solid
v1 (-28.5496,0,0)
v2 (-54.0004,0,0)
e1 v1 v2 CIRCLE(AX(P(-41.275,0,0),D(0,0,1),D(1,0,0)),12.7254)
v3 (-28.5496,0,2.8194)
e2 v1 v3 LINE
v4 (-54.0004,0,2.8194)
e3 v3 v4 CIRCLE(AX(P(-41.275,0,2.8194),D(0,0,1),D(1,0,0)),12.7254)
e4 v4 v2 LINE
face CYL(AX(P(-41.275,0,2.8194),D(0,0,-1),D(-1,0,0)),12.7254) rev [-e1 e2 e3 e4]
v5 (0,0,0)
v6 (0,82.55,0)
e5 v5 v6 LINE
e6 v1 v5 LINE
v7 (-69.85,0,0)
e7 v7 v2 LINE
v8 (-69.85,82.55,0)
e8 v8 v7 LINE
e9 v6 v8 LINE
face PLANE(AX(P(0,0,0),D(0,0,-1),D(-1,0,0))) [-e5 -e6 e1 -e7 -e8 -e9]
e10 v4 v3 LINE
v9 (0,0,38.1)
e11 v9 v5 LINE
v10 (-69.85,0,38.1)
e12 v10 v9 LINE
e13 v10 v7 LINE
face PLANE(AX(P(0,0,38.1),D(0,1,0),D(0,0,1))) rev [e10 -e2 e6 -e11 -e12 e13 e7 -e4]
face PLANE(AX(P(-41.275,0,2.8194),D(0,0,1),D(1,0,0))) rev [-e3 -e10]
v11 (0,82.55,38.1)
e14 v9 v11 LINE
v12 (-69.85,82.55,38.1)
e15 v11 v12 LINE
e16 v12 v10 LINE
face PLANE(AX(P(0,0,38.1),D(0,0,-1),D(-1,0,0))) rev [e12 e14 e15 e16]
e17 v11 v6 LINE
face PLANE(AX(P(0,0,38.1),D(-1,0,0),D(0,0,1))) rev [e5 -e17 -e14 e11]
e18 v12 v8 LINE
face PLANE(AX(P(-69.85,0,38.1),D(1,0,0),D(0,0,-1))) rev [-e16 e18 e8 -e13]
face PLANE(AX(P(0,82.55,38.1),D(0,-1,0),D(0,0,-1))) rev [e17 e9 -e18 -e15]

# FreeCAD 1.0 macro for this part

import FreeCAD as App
import Part
import Sketcher

V = App.Vector
Q = App.Units.Quantity

doc = App.newDocument("Part")
body = doc.addObject("PartDesign::Body", "Body")

# Sketch on XY plane
sketch1 = body.newObject("Sketcher::SketchObject", "Sketch")
sketch1.AttachmentSupport = (doc.getObject("XY_Plane"), [""])
sketch1.MapMode = "FlatFace"
sketch1.addGeometry(Part.LineSegment(V(-70, 0, 0), V(0, 0, 0)), False)
sketch1.addGeometry(Part.LineSegment(V(0, 0, 0), V(0, 83, 0)), False)
sketch1.addGeometry(Part.LineSegment(V(0, 83, 0), V(-70, 83, 0)), False)
sketch1.addGeometry(Part.LineSegment(V(-70, 83, 0), V(-70, 0, 0)), False)
sketch1.addConstraint(Sketcher.Constraint("Coincident", 0, 2, 1, 1))
sketch1.addConstraint(Sketcher.Constraint("Coincident", 1, 2, 2, 1))
sketch1.addConstraint(Sketcher.Constraint("Coincident", 2, 2, 3, 1))
sketch1.addConstraint(Sketcher.Constraint("Coincident", 3, 2, 0, 1))
sketch1.addConstraint(Sketcher.Constraint("Horizontal", 0))
sketch1.addConstraint(Sketcher.Constraint("Vertical", 1))
sketch1.addConstraint(Sketcher.Constraint("Horizontal", 2))
sketch1.addConstraint(Sketcher.Constraint("Vertical", 3))
sketch1.addConstraint(Sketcher.Constraint("Coincident", 0, 2, -1, 1))
sketch1.addConstraint(Sketcher.Constraint("DistanceX", 0, 1, 0, 2, Q("2.75 in")))
sketch1.addConstraint(Sketcher.Constraint("DistanceY", 1, 1, 1, 2, Q("3.25 in")))
pad1 = body.newObject("PartDesign::Pad", "Pad")
pad1.Profile = sketch1
pad1.Length = Q("1.5 in")

# Sketch on XY plane
sketch2 = body.newObject("Sketcher::SketchObject", "Sketch001")
sketch2.AttachmentSupport = (doc.getObject("XY_Plane"), [""])
sketch2.MapMode = "FlatFace"
sketch2.addGeometry(Part.Circle(V(-41, 0, 0), V(0, 0, 1), 13), False)
sketch2.addConstraint(Sketcher.Constraint("PointOnObject", 0, 3, -1))
sketch2.addConstraint(Sketcher.Constraint("Diameter", 0, Q("1.002 in")))
sketch2.addConstraint(Sketcher.Constraint("DistanceX", 0, 3, -1, 1, Q("1.625 in")))
pocket1 = body.newObject("PartDesign::Pocket", "Pocket")
pocket1.Profile = sketch2
pocket1.Length = Q("0.111 in")
pocket1.Reversed = True

doc.recompute()
